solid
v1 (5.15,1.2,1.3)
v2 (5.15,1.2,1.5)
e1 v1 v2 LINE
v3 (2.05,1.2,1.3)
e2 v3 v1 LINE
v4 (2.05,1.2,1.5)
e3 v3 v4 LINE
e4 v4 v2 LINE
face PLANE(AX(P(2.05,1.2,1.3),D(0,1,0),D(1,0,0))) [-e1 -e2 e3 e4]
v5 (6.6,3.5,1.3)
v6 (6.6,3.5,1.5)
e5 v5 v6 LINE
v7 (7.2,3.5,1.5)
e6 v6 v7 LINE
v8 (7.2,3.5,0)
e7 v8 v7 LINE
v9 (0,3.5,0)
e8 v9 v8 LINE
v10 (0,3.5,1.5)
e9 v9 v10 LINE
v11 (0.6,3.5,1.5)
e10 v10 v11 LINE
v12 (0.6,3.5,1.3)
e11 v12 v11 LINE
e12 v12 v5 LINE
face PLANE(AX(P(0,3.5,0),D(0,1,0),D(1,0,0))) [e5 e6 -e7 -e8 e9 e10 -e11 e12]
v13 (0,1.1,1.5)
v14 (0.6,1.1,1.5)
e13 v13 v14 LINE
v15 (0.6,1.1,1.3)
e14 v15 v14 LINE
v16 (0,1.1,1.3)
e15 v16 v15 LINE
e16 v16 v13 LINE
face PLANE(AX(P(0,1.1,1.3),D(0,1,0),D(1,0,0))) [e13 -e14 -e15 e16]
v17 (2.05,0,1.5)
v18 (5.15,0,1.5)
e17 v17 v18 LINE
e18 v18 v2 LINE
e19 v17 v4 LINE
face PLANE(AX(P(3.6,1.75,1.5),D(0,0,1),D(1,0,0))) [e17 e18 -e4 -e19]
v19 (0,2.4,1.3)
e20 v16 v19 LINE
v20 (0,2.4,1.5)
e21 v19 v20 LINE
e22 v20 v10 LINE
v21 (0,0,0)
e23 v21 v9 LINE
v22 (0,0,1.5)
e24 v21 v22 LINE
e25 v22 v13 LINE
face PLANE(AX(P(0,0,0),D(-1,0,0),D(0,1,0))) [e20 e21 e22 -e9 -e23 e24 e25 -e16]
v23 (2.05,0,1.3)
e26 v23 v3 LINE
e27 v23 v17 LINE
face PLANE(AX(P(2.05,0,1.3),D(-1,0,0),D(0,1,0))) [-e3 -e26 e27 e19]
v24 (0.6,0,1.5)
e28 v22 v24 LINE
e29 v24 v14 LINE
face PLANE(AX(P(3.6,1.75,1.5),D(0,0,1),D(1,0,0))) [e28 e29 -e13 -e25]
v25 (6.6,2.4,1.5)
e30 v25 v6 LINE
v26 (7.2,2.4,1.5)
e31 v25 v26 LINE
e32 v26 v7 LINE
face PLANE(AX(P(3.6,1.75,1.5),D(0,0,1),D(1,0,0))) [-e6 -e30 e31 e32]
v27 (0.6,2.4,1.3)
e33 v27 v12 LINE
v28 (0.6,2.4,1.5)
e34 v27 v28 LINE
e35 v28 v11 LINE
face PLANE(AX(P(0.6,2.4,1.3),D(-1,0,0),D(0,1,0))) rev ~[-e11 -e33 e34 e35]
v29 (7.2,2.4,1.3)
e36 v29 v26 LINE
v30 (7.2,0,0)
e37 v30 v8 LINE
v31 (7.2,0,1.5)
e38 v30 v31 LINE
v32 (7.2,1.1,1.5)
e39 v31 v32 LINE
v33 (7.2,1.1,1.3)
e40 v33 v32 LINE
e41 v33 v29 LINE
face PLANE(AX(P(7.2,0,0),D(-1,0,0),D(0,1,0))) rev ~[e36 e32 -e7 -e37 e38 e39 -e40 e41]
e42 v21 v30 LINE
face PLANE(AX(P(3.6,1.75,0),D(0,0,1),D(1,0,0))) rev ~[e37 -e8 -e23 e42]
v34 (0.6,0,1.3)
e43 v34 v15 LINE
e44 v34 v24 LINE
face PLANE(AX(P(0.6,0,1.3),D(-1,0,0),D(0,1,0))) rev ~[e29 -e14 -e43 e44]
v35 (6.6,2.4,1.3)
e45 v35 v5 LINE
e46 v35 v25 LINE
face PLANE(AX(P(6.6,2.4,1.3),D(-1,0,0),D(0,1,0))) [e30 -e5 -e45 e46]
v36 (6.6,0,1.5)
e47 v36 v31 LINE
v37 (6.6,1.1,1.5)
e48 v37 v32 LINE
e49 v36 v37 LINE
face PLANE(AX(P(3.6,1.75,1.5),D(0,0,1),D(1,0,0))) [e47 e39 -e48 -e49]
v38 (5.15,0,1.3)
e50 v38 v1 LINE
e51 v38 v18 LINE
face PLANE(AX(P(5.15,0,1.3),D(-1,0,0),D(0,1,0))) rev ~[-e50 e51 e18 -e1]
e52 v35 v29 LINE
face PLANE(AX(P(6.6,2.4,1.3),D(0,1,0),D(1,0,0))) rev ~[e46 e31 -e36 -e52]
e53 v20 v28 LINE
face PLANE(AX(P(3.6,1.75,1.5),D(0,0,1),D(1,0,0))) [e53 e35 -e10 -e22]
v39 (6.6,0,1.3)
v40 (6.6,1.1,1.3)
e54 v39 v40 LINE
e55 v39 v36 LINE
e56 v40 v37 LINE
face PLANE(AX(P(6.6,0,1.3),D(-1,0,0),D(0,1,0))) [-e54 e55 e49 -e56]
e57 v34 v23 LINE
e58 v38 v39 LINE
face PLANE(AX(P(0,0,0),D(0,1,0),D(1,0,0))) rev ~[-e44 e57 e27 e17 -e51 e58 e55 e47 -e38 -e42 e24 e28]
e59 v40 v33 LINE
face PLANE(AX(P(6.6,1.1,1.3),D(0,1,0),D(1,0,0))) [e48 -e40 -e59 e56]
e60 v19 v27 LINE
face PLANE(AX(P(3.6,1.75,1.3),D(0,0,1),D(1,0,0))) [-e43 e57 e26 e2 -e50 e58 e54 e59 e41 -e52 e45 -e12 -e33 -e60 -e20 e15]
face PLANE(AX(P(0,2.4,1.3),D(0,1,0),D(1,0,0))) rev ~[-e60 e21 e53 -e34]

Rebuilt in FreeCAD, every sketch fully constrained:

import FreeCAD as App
import Part
import Sketcher
from FreeCAD import Vector


def add_polygon(sketch, points):
    """Adds a closed chain of lines whose ends are joined by coincident constraints."""
    first, n = sketch.GeometryCount, len(points)
    for a, b in zip(points, points[1:] + points[:1]):
        sketch.addGeometry(Part.LineSegment(App.Vector(*a, 0), App.Vector(*b, 0)), False)
    for i in range(n):
        sketch.addConstraint(Sketcher.Constraint("Coincident", first + i, 2, first + (i + 1) % n, 1))

doc = App.newDocument("Part")
body = doc.addObject("PartDesign::Body", "Body")

sketch1 = body.newObject("Sketcher::SketchObject", "Sketch")
sketch1.AttachmentSupport = (doc.getObject("XY_Plane"), [""])
sketch1.MapMode = "FlatFace"
sketch1.AttachmentOffset = App.Placement(Vector(0, 0, 1.3), App.Rotation())
add_polygon(sketch1, [(2, 1.2), (2, 0), (5.2, 0), (5.2, 1.2)])
sketch1.addConstraint([
    Sketcher.Constraint("Vertical", 0),
    Sketcher.Constraint("Horizontal", 1),
    Sketcher.Constraint("Vertical", 2),
    Sketcher.Constraint("Horizontal", 3),
    Sketcher.Constraint("PointOnObject", 0, 2, -1),
    Sketcher.Constraint("DistanceX", 1, 1, 1, 2, 3.1),
    Sketcher.Constraint("DistanceY", 0, 2, 0, 1, 1.2),
    Sketcher.Constraint("DistanceX", -1, 1, 0, 2, 2.05),
])
pad1 = body.newObject("PartDesign::Pad", "Pad")
pad1.Profile = sketch1
pad1.Length = 0.2
body2 = doc.addObject("PartDesign::Body", "Body001")

sketch2 = body2.newObject("Sketcher::SketchObject", "Sketch001")
sketch2.AttachmentSupport = (doc.getObject("XY_Plane001"), [""])
sketch2.MapMode = "FlatFace"
sketch2.AttachmentOffset = App.Placement(Vector(0, 0, 1.3), App.Rotation())
add_polygon(sketch2, [(0, 3.5), (0, 2.4), (0.6, 2.4), (0.6, 3.5)])
sketch2.addConstraint([
    Sketcher.Constraint("Vertical", 0),
    Sketcher.Constraint("Horizontal", 1),
    Sketcher.Constraint("Vertical", 2),
    Sketcher.Constraint("Horizontal", 3),
    Sketcher.Constraint("PointOnObject", 0, 2, -2),
    Sketcher.Constraint("DistanceX", 1, 1, 1, 2, 0.6),
    Sketcher.Constraint("DistanceY", 0, 2, 0, 1, 1.1),
    Sketcher.Constraint("DistanceY", -1, 1, 0, 2, 2.4),
])
pad2 = body2.newObject("PartDesign::Pad", "Pad001")
pad2.Profile = sketch2
pad2.Length = 0.2
body3 = doc.addObject("PartDesign::Body", "Body002")

sketch3 = body3.newObject("Sketcher::SketchObject", "Sketch002")
sketch3.AttachmentSupport = (doc.getObject("XY_Plane002"), [""])
sketch3.MapMode = "FlatFace"
sketch3.AttachmentOffset = App.Placement(Vector(0, 0, 1.3), App.Rotation())
add_polygon(sketch3, [(0, 1.1), (0, 0), (0.6, 0), (0.6, 1.1)])
sketch3.addConstraint([
    Sketcher.Constraint("Vertical", 0),
    Sketcher.Constraint("Horizontal", 1),
    Sketcher.Constraint("Vertical", 2),
    Sketcher.Constraint("Horizontal", 3),
    Sketcher.Constraint("Coincident", 0, 2, -1, 1),
    Sketcher.Constraint("DistanceX", 1, 1, 1, 2, 0.6),
    Sketcher.Constraint("DistanceY", 0, 2, 0, 1, 1.1),
])
pad3 = body3.newObject("PartDesign::Pad", "Pad002")
pad3.Profile = sketch3
pad3.Length = 0.2
body4 = doc.addObject("PartDesign::Body", "Body003")

sketch4 = body4.newObject("Sketcher::SketchObject", "Sketch003")
sketch4.AttachmentSupport = (doc.getObject("XY_Plane003"), [""])
sketch4.MapMode = "FlatFace"
sketch4.AttachmentOffset = App.Placement(Vector(0, 0, 1.3), App.Rotation())
add_polygon(sketch4, [(6.6, 3.5), (6.6, 2.4), (7.2, 2.4), (7.2, 3.5)])
sketch4.addConstraint([
    Sketcher.Constraint("Vertical", 0),
    Sketcher.Constraint("Horizontal", 1),
    Sketcher.Constraint("Vertical", 2),
    Sketcher.Constraint("Horizontal", 3),
    Sketcher.Constraint("DistanceX", 1, 1, 1, 2, 0.6),
    Sketcher.Constraint("DistanceY", 0, 2, 0, 1, 1.1),
    Sketcher.Constraint("DistanceX", -1, 1, 0, 2, 6.6),
    Sketcher.Constraint("DistanceY", -1, 1, 0, 2, 2.4),
])
pad4 = body4.newObject("PartDesign::Pad", "Pad003")
pad4.Profile = sketch4
pad4.Length = 0.2
body5 = doc.addObject("PartDesign::Body", "Body004")

sketch5 = body5.newObject("Sketcher::SketchObject", "Sketch004")
sketch5.AttachmentSupport = (doc.getObject("XY_Plane004"), [""])
sketch5.MapMode = "FlatFace"
sketch5.AttachmentOffset = App.Placement(Vector(0, 0, 1.3), App.Rotation())
add_polygon(sketch5, [(6.6, 1.1), (6.6, 0), (7.2, 0), (7.2, 1.1)])
sketch5.addConstraint([
    Sketcher.Constraint("Vertical", 0),
    Sketcher.Constraint("Horizontal", 1),
    Sketcher.Constraint("Vertical", 2),
    Sketcher.Constraint("Horizontal", 3),
    Sketcher.Constraint("PointOnObject", 0, 2, -1),
    Sketcher.Constraint("DistanceX", 1, 1, 1, 2, 0.6),
    Sketcher.Constraint("DistanceY", 0, 2, 0, 1, 1.1),
    Sketcher.Constraint("DistanceX", -1, 1, 0, 2, 6.6),
])
pad5 = body5.newObject("PartDesign::Pad", "Pad004")
pad5.Profile = sketch5
pad5.Length = 0.2
body6 = doc.addObject("PartDesign::Body", "Body005")

sketch6 = body6.newObject("Sketcher::SketchObject", "Sketch005")
sketch6.AttachmentSupport = (doc.getObject("XY_Plane005"), [""])
sketch6.MapMode = "FlatFace"
sketch6.AttachmentOffset = App.Placement(Vector(0, 0, 1.3), App.Rotation())
add_polygon(sketch6, [(0, 3.5), (0, 0), (7.2, 0), (7.2, 3.5)])
sketch6.addConstraint([
    Sketcher.Constraint("Vertical", 0),
    Sketcher.Constraint("Horizontal", 1),
    Sketcher.Constraint("Vertical", 2),
    Sketcher.Constraint("Horizontal", 3),
    Sketcher.Constraint("Coincident", 0, 2, -1, 1),
    Sketcher.Constraint("DistanceX", 1, 1, 1, 2, 7.2),
    Sketcher.Constraint("DistanceY", 0, 2, 0, 1, 3.5),
])
pad6 = body6.newObject("PartDesign::Pad", "Pad005")
pad6.Profile = sketch6
pad6.Length = 0.2
doc.recompute()

boolean = body6.newObject("PartDesign::Boolean", "Boolean")
boolean.Type = "Cut"
boolean.addObjects([body5])
doc.recompute()

boolean2 = body6.newObject("PartDesign::Boolean", "Boolean001")
boolean2.Type = "Cut"
boolean2.addObjects([body4])
doc.recompute()

boolean3 = body6.newObject("PartDesign::Boolean", "Boolean002")
boolean3.Type = "Cut"
boolean3.addObjects([body3])
doc.recompute()

boolean4 = body6.newObject("PartDesign::Boolean", "Boolean003")
boolean4.Type = "Cut"
boolean4.addObjects([body2])
doc.recompute()

boolean5 = body6.newObject("PartDesign::Boolean", "Boolean004")
boolean5.Type = "Cut"
boolean5.addObjects([body])
body7 = doc.addObject("PartDesign::Body", "Body006")

sketch7 = body7.newObject("Sketcher::SketchObject", "Sketch006")
sketch7.AttachmentSupport = (doc.getObject("XY_Plane006"), [""])
sketch7.MapMode = "FlatFace"
add_polygon(sketch7, [(0, 3.5), (0, 0), (7.2, 0), (7.2, 3.5)])
sketch7.addConstraint([
    Sketcher.Constraint("Vertical", 0),
    Sketcher.Constraint("Horizontal", 1),
    Sketcher.Constraint("Vertical", 2),
    Sketcher.Constraint("Horizontal", 3),
    Sketcher.Constraint("Coincident", 0, 2, -1, 1),
    Sketcher.Constraint("DistanceX", 1, 1, 1, 2, 7.2),
    Sketcher.Constraint("DistanceY", 0, 2, 0, 1, 3.5),
])
pad7 = body7.newObject("PartDesign::Pad", "Pad006")
pad7.Profile = sketch7
pad7.Length = 1.5
doc.recompute()

boolean6 = body7.newObject("PartDesign::Boolean", "Boolean005")
boolean6.Type = "Cut"
boolean6.addObjects([body6])

doc.recompute()
